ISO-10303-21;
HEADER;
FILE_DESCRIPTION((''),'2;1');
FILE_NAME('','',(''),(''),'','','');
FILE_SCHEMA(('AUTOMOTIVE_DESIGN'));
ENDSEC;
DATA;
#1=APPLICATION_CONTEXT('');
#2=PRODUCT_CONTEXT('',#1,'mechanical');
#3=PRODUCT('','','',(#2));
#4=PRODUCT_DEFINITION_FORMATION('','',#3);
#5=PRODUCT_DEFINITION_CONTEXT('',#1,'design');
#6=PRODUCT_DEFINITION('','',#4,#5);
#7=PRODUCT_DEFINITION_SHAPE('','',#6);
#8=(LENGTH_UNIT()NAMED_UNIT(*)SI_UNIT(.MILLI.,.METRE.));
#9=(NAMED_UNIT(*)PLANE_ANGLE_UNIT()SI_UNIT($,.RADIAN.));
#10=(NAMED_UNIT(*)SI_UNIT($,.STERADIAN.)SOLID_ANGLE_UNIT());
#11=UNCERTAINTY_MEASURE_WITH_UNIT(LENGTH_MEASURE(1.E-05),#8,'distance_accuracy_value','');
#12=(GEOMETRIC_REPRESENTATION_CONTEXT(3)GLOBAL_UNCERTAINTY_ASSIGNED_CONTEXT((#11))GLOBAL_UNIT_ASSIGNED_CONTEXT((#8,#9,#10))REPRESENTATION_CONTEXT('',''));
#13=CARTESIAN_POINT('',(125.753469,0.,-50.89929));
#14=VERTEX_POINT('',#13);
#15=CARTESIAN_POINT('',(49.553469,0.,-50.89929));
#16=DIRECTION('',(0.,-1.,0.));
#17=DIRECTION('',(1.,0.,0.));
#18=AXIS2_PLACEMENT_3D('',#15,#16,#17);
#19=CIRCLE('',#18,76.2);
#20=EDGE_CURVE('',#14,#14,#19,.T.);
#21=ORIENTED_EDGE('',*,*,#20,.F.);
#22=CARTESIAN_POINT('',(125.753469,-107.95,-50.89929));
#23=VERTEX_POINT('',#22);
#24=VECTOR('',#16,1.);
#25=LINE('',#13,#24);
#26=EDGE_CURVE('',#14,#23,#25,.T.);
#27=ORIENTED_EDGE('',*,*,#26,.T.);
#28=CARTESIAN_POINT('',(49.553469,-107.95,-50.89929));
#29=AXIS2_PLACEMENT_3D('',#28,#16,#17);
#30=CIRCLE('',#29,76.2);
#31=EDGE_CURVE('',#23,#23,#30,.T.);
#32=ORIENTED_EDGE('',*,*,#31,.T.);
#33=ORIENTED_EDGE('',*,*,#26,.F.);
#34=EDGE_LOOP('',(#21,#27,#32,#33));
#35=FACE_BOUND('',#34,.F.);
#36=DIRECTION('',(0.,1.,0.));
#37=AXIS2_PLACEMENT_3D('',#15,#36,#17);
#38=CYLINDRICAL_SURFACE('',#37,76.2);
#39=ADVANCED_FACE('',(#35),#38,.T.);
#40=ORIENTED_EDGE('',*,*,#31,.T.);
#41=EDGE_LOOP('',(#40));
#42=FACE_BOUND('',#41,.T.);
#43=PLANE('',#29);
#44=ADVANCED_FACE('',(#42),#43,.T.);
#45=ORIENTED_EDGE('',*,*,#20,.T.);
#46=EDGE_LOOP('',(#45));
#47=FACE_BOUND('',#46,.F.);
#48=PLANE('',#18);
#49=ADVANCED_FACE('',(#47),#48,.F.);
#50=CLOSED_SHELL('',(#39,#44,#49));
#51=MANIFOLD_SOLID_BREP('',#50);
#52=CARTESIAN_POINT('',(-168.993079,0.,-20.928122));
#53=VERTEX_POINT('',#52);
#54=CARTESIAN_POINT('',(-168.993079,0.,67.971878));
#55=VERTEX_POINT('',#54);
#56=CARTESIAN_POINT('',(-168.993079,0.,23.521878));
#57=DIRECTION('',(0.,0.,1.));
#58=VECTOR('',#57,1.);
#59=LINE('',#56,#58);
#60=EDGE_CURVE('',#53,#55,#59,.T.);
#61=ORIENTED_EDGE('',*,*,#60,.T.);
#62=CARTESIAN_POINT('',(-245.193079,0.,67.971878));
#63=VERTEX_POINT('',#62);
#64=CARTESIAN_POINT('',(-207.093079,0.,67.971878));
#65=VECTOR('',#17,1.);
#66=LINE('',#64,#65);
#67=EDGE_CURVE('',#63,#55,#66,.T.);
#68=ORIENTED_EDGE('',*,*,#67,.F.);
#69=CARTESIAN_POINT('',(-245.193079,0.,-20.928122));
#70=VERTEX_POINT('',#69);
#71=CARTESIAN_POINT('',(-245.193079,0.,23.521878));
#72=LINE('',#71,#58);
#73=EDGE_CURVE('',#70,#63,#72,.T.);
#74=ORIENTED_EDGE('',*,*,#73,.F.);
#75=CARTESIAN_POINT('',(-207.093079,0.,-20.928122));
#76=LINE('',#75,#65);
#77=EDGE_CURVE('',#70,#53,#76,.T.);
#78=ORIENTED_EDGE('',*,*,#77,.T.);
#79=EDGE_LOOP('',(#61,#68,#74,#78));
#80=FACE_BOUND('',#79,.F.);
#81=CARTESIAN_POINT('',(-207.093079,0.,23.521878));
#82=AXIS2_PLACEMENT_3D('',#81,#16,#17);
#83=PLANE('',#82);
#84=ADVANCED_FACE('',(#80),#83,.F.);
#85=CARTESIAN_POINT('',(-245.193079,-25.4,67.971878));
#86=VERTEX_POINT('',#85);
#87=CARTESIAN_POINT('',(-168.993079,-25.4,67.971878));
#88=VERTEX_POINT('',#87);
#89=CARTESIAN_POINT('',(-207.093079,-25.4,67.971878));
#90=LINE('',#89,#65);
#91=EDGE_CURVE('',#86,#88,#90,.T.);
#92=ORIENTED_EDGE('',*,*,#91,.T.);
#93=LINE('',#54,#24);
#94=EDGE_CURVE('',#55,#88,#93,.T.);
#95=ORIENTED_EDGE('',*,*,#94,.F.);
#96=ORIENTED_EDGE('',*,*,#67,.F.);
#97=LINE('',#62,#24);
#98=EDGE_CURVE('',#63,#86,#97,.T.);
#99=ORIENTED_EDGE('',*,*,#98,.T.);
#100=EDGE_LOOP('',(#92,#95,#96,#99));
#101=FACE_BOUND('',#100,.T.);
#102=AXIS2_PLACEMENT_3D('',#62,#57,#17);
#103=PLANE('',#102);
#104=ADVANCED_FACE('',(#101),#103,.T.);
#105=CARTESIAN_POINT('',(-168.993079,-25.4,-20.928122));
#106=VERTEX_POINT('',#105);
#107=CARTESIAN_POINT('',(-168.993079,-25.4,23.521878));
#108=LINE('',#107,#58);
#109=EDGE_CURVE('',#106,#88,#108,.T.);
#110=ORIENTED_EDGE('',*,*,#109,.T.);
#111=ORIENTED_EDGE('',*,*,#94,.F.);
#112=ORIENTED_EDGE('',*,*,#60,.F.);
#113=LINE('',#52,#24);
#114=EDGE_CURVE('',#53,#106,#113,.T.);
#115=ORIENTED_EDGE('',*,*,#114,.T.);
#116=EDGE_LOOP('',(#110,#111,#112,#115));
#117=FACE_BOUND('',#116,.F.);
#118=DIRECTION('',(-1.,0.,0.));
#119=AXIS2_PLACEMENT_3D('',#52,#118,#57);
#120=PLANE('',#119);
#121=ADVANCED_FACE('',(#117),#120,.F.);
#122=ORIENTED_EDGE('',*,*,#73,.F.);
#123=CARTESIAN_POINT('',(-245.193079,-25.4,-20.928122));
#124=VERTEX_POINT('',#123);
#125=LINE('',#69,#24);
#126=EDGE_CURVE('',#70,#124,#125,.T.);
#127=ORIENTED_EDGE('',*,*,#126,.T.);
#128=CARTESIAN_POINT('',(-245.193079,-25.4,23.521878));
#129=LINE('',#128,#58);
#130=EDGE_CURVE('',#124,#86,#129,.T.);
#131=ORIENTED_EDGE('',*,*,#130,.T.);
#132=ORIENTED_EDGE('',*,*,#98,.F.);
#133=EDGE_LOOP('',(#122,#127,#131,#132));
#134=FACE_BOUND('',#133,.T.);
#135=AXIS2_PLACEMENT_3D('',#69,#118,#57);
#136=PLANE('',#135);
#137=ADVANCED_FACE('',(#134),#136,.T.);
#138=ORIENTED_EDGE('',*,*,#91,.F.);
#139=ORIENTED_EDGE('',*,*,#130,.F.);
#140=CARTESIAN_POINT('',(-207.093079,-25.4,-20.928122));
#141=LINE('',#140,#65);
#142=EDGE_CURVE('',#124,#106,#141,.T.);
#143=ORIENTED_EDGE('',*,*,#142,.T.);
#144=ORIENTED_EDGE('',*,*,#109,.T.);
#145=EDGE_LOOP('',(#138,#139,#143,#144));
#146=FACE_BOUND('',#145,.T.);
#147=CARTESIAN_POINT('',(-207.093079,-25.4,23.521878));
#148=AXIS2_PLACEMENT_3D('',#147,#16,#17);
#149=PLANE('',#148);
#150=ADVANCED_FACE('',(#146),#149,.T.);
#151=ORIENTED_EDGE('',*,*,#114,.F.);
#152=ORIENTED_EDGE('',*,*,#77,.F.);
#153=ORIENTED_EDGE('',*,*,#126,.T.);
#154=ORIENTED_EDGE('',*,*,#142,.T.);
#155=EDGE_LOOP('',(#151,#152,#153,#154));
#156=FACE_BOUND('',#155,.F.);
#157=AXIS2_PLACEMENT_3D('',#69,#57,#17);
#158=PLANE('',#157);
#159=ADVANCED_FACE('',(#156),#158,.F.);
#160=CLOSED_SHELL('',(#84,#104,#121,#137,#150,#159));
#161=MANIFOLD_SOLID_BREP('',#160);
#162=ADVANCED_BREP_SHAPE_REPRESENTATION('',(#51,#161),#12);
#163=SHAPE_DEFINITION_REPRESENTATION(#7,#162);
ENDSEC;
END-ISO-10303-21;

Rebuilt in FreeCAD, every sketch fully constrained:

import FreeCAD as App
import Part
import Sketcher

V = App.Vector
Q = App.Units.Quantity


def add_polygon(sketch, points):
    """Adds a closed chain of lines whose ends are joined by coincident constraints."""
    first, n = sketch.GeometryCount, len(points)
    for a, b in zip(points, points[1:] + points[:1]):
        sketch.addGeometry(Part.LineSegment(App.Vector(*a, 0), App.Vector(*b, 0)), False)
    for i in range(n):
        sketch.addConstraint(Sketcher.Constraint("Coincident", first + i, 2, first + (i + 1) % n, 1))

doc = App.newDocument("Part")
body = doc.addObject("PartDesign::Body", "Body")

sketch1 = body.newObject("Sketcher::SketchObject", "Sketch")
sketch1.AttachmentSupport = (doc.getObject("XZ_Plane"), [""])
sketch1.MapMode = "FlatFace"
sketch1.addGeometry(Part.Circle(V(50, -51, 0), V(0, 0, 1), 76), False)
sketch1.addConstraint(Sketcher.Constraint("Diameter", 0, Q("6 in")))
sketch1.addConstraint(Sketcher.Constraint("DistanceX", -1, 1, 0, 3, 49.553469))
sketch1.addConstraint(Sketcher.Constraint("DistanceY", 0, 3, -1, 1, 50.89929))
pad1 = body.newObject("PartDesign::Pad", "Pad")
pad1.Profile = sketch1
pad1.Length = Q("4.25 in")
body2 = doc.addObject("PartDesign::Body", "Body001")

sketch2 = body2.newObject("Sketcher::SketchObject", "Sketch001")
sketch2.AttachmentSupport = (doc.getObject("XZ_Plane001"), [""])
sketch2.MapMode = "FlatFace"
add_polygon(sketch2, [(-245, 68), (-245, -21), (-169, -21), (-169, 68)])
sketch2.addConstraint(Sketcher.Constraint("Vertical", 0))
sketch2.addConstraint(Sketcher.Constraint("Horizontal", 1))
sketch2.addConstraint(Sketcher.Constraint("Vertical", 2))
sketch2.addConstraint(Sketcher.Constraint("Horizontal", 3))
sketch2.addConstraint(Sketcher.Constraint("DistanceX", 1, 1, 1, 2, Q("3 in")))
sketch2.addConstraint(Sketcher.Constraint("DistanceY", 0, 2, 0, 1, Q("3.5 in")))
sketch2.addConstraint(Sketcher.Constraint("DistanceX", 0, 2, -1, 1, 245.193079))
sketch2.addConstraint(Sketcher.Constraint("DistanceY", 0, 2, -1, 1, 20.928122))
pad2 = body2.newObject("PartDesign::Pad", "Pad001")
pad2.Profile = sketch2
pad2.Length = Q("1 in")

doc.recompute()
